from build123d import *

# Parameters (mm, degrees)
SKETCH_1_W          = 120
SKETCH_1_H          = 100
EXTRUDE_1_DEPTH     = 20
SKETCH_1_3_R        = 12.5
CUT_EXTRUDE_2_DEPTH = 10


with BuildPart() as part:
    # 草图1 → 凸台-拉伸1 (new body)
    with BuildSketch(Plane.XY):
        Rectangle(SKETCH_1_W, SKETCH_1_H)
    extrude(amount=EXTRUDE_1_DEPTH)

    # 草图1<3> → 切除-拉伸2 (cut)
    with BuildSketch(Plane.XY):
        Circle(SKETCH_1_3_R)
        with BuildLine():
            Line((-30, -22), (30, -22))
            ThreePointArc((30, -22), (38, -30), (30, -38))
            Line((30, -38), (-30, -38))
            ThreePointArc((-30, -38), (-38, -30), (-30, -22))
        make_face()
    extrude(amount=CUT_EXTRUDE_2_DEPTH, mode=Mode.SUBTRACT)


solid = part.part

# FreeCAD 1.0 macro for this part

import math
import FreeCAD as App
import Part
import Sketcher
from FreeCAD import Vector
Q = App.Units.Quantity


def add_polygon(sketch, points):
    """Adds a closed chain of lines whose ends are joined by coincident constraints."""
    first, n = sketch.GeometryCount, len(points)
    for a, b in zip(points, points[1:] + points[:1]):
        sketch.addGeometry(Part.LineSegment(App.Vector(*a, 0), App.Vector(*b, 0)), False)
    for i in range(n):
        sketch.addConstraint(Sketcher.Constraint("Coincident", first + i, 2, first + (i + 1) % n, 1))

doc = App.newDocument("Part")
params = doc.addObject("Spreadsheet::Sheet", "Params")
for row, (alias, value) in enumerate([
    ("sketch1_width", "120 mm"),
    ("sketch1_height", "100 mm"),
    ("pad1_length", "20 mm"),
    ("sketch2_diameter", "25 mm"),
    ("sketch2_radius", "8 mm"),
    ("sketch2_width", "60 mm"),
    ("pocket1_length", "10 mm"),
], start=1):
    params.set(f"A{row}", alias)
    params.set(f"B{row}", "=" + value)
    params.setAlias(f"B{row}", alias)

body = doc.addObject("PartDesign::Body", "Body")

sketch1 = doc.addObject("Sketcher::SketchObject", "Sketch")
body.addObject(sketch1)
sketch1.AttachmentSupport = (doc.XY_Plane, [""])
sketch1.MapMode = "FlatFace"
add_polygon(sketch1, [(-60, 50), (-60, -50), (60, -50), (60, 50)])
sketch1.addConstraint([
    Sketcher.Constraint("Vertical", 0),
    Sketcher.Constraint("Horizontal", 1),
    Sketcher.Constraint("Vertical", 2),
    Sketcher.Constraint("Horizontal", 3),
    Sketcher.Constraint("Symmetric", 0, 2, 2, 2, -1, 1),
    Sketcher.Constraint("DistanceX", 1, 1, 1, 2, Q("120 mm")),
    Sketcher.Constraint("DistanceY", 0, 2, 0, 1, Q("100 mm")),
])
sketch1.setExpression("Constraints[9]", "Params.sketch1_width")
sketch1.setExpression("Constraints[10]", "Params.sketch1_height")
pad1 = doc.addObject("PartDesign::Pad", "Pad")
body.addObject(pad1)
pad1.Profile = sketch1
pad1.setExpression("Length", "Params.pad1_length")

sketch2 = doc.addObject("Sketcher::SketchObject", "Sketch001")
body.addObject(sketch2)
sketch2.AttachmentSupport = (doc.XY_Plane, [""])
sketch2.MapMode = "FlatFace"
sketch2.addGeometry([
    Part.Circle(Vector(0, 0, 0), Vector(0, 0, 1), 12.5),
    Part.LineSegment(Vector(30, -22, 0), Vector(-30, -22, 0)),
    Part.ArcOfCircle(Part.Circle(Vector(-30, -30, 0), Vector(0, 0, 1), 8), math.radians(90), math.radians(270)),
    Part.LineSegment(Vector(-30, -38, 0), Vector(30, -38, 0)),
    Part.ArcOfCircle(Part.Circle(Vector(30, -30, 0), Vector(0, 0, 1), 8), math.radians(-90), math.radians(90)),
], False)
sketch2.addConstraint([
    Sketcher.Constraint("Tangent", 1, 2, 2, 1),
    Sketcher.Constraint("Tangent", 2, 2, 3, 1),
    Sketcher.Constraint("Tangent", 3, 2, 4, 1),
    Sketcher.Constraint("Tangent", 4, 2, 1, 1),
    Sketcher.Constraint("Horizontal", 1),
    Sketcher.Constraint("Horizontal", 3),
    Sketcher.Constraint("Coincident", 0, 3, -1, 1),
    Sketcher.Constraint("Diameter", 0, Q("25 mm")),
    Sketcher.Constraint("Radius", 2, Q("8 mm")),
    Sketcher.Constraint("DistanceX", 1, 2, 1, 1, Q("60 mm")),
    Sketcher.Constraint("DistanceX", 2, 3, -1, 1, Q("30 mm")),
    Sketcher.Constraint("DistanceY", 2, 3, -1, 1, Q("30 mm")),
])
sketch2.setExpression("Constraints[7]", "Params.sketch2_diameter")
sketch2.setExpression("Constraints[8]", "Params.sketch2_radius")
sketch2.setExpression("Constraints[9]", "Params.sketch2_width")
pocket1 = doc.addObject("PartDesign::Pocket", "Pocket")
body.addObject(pocket1)
pocket1.Profile = sketch2
pocket1.setExpression("Length", "Params.pocket1_length")
pocket1.Reversed = True

doc.recompute()
